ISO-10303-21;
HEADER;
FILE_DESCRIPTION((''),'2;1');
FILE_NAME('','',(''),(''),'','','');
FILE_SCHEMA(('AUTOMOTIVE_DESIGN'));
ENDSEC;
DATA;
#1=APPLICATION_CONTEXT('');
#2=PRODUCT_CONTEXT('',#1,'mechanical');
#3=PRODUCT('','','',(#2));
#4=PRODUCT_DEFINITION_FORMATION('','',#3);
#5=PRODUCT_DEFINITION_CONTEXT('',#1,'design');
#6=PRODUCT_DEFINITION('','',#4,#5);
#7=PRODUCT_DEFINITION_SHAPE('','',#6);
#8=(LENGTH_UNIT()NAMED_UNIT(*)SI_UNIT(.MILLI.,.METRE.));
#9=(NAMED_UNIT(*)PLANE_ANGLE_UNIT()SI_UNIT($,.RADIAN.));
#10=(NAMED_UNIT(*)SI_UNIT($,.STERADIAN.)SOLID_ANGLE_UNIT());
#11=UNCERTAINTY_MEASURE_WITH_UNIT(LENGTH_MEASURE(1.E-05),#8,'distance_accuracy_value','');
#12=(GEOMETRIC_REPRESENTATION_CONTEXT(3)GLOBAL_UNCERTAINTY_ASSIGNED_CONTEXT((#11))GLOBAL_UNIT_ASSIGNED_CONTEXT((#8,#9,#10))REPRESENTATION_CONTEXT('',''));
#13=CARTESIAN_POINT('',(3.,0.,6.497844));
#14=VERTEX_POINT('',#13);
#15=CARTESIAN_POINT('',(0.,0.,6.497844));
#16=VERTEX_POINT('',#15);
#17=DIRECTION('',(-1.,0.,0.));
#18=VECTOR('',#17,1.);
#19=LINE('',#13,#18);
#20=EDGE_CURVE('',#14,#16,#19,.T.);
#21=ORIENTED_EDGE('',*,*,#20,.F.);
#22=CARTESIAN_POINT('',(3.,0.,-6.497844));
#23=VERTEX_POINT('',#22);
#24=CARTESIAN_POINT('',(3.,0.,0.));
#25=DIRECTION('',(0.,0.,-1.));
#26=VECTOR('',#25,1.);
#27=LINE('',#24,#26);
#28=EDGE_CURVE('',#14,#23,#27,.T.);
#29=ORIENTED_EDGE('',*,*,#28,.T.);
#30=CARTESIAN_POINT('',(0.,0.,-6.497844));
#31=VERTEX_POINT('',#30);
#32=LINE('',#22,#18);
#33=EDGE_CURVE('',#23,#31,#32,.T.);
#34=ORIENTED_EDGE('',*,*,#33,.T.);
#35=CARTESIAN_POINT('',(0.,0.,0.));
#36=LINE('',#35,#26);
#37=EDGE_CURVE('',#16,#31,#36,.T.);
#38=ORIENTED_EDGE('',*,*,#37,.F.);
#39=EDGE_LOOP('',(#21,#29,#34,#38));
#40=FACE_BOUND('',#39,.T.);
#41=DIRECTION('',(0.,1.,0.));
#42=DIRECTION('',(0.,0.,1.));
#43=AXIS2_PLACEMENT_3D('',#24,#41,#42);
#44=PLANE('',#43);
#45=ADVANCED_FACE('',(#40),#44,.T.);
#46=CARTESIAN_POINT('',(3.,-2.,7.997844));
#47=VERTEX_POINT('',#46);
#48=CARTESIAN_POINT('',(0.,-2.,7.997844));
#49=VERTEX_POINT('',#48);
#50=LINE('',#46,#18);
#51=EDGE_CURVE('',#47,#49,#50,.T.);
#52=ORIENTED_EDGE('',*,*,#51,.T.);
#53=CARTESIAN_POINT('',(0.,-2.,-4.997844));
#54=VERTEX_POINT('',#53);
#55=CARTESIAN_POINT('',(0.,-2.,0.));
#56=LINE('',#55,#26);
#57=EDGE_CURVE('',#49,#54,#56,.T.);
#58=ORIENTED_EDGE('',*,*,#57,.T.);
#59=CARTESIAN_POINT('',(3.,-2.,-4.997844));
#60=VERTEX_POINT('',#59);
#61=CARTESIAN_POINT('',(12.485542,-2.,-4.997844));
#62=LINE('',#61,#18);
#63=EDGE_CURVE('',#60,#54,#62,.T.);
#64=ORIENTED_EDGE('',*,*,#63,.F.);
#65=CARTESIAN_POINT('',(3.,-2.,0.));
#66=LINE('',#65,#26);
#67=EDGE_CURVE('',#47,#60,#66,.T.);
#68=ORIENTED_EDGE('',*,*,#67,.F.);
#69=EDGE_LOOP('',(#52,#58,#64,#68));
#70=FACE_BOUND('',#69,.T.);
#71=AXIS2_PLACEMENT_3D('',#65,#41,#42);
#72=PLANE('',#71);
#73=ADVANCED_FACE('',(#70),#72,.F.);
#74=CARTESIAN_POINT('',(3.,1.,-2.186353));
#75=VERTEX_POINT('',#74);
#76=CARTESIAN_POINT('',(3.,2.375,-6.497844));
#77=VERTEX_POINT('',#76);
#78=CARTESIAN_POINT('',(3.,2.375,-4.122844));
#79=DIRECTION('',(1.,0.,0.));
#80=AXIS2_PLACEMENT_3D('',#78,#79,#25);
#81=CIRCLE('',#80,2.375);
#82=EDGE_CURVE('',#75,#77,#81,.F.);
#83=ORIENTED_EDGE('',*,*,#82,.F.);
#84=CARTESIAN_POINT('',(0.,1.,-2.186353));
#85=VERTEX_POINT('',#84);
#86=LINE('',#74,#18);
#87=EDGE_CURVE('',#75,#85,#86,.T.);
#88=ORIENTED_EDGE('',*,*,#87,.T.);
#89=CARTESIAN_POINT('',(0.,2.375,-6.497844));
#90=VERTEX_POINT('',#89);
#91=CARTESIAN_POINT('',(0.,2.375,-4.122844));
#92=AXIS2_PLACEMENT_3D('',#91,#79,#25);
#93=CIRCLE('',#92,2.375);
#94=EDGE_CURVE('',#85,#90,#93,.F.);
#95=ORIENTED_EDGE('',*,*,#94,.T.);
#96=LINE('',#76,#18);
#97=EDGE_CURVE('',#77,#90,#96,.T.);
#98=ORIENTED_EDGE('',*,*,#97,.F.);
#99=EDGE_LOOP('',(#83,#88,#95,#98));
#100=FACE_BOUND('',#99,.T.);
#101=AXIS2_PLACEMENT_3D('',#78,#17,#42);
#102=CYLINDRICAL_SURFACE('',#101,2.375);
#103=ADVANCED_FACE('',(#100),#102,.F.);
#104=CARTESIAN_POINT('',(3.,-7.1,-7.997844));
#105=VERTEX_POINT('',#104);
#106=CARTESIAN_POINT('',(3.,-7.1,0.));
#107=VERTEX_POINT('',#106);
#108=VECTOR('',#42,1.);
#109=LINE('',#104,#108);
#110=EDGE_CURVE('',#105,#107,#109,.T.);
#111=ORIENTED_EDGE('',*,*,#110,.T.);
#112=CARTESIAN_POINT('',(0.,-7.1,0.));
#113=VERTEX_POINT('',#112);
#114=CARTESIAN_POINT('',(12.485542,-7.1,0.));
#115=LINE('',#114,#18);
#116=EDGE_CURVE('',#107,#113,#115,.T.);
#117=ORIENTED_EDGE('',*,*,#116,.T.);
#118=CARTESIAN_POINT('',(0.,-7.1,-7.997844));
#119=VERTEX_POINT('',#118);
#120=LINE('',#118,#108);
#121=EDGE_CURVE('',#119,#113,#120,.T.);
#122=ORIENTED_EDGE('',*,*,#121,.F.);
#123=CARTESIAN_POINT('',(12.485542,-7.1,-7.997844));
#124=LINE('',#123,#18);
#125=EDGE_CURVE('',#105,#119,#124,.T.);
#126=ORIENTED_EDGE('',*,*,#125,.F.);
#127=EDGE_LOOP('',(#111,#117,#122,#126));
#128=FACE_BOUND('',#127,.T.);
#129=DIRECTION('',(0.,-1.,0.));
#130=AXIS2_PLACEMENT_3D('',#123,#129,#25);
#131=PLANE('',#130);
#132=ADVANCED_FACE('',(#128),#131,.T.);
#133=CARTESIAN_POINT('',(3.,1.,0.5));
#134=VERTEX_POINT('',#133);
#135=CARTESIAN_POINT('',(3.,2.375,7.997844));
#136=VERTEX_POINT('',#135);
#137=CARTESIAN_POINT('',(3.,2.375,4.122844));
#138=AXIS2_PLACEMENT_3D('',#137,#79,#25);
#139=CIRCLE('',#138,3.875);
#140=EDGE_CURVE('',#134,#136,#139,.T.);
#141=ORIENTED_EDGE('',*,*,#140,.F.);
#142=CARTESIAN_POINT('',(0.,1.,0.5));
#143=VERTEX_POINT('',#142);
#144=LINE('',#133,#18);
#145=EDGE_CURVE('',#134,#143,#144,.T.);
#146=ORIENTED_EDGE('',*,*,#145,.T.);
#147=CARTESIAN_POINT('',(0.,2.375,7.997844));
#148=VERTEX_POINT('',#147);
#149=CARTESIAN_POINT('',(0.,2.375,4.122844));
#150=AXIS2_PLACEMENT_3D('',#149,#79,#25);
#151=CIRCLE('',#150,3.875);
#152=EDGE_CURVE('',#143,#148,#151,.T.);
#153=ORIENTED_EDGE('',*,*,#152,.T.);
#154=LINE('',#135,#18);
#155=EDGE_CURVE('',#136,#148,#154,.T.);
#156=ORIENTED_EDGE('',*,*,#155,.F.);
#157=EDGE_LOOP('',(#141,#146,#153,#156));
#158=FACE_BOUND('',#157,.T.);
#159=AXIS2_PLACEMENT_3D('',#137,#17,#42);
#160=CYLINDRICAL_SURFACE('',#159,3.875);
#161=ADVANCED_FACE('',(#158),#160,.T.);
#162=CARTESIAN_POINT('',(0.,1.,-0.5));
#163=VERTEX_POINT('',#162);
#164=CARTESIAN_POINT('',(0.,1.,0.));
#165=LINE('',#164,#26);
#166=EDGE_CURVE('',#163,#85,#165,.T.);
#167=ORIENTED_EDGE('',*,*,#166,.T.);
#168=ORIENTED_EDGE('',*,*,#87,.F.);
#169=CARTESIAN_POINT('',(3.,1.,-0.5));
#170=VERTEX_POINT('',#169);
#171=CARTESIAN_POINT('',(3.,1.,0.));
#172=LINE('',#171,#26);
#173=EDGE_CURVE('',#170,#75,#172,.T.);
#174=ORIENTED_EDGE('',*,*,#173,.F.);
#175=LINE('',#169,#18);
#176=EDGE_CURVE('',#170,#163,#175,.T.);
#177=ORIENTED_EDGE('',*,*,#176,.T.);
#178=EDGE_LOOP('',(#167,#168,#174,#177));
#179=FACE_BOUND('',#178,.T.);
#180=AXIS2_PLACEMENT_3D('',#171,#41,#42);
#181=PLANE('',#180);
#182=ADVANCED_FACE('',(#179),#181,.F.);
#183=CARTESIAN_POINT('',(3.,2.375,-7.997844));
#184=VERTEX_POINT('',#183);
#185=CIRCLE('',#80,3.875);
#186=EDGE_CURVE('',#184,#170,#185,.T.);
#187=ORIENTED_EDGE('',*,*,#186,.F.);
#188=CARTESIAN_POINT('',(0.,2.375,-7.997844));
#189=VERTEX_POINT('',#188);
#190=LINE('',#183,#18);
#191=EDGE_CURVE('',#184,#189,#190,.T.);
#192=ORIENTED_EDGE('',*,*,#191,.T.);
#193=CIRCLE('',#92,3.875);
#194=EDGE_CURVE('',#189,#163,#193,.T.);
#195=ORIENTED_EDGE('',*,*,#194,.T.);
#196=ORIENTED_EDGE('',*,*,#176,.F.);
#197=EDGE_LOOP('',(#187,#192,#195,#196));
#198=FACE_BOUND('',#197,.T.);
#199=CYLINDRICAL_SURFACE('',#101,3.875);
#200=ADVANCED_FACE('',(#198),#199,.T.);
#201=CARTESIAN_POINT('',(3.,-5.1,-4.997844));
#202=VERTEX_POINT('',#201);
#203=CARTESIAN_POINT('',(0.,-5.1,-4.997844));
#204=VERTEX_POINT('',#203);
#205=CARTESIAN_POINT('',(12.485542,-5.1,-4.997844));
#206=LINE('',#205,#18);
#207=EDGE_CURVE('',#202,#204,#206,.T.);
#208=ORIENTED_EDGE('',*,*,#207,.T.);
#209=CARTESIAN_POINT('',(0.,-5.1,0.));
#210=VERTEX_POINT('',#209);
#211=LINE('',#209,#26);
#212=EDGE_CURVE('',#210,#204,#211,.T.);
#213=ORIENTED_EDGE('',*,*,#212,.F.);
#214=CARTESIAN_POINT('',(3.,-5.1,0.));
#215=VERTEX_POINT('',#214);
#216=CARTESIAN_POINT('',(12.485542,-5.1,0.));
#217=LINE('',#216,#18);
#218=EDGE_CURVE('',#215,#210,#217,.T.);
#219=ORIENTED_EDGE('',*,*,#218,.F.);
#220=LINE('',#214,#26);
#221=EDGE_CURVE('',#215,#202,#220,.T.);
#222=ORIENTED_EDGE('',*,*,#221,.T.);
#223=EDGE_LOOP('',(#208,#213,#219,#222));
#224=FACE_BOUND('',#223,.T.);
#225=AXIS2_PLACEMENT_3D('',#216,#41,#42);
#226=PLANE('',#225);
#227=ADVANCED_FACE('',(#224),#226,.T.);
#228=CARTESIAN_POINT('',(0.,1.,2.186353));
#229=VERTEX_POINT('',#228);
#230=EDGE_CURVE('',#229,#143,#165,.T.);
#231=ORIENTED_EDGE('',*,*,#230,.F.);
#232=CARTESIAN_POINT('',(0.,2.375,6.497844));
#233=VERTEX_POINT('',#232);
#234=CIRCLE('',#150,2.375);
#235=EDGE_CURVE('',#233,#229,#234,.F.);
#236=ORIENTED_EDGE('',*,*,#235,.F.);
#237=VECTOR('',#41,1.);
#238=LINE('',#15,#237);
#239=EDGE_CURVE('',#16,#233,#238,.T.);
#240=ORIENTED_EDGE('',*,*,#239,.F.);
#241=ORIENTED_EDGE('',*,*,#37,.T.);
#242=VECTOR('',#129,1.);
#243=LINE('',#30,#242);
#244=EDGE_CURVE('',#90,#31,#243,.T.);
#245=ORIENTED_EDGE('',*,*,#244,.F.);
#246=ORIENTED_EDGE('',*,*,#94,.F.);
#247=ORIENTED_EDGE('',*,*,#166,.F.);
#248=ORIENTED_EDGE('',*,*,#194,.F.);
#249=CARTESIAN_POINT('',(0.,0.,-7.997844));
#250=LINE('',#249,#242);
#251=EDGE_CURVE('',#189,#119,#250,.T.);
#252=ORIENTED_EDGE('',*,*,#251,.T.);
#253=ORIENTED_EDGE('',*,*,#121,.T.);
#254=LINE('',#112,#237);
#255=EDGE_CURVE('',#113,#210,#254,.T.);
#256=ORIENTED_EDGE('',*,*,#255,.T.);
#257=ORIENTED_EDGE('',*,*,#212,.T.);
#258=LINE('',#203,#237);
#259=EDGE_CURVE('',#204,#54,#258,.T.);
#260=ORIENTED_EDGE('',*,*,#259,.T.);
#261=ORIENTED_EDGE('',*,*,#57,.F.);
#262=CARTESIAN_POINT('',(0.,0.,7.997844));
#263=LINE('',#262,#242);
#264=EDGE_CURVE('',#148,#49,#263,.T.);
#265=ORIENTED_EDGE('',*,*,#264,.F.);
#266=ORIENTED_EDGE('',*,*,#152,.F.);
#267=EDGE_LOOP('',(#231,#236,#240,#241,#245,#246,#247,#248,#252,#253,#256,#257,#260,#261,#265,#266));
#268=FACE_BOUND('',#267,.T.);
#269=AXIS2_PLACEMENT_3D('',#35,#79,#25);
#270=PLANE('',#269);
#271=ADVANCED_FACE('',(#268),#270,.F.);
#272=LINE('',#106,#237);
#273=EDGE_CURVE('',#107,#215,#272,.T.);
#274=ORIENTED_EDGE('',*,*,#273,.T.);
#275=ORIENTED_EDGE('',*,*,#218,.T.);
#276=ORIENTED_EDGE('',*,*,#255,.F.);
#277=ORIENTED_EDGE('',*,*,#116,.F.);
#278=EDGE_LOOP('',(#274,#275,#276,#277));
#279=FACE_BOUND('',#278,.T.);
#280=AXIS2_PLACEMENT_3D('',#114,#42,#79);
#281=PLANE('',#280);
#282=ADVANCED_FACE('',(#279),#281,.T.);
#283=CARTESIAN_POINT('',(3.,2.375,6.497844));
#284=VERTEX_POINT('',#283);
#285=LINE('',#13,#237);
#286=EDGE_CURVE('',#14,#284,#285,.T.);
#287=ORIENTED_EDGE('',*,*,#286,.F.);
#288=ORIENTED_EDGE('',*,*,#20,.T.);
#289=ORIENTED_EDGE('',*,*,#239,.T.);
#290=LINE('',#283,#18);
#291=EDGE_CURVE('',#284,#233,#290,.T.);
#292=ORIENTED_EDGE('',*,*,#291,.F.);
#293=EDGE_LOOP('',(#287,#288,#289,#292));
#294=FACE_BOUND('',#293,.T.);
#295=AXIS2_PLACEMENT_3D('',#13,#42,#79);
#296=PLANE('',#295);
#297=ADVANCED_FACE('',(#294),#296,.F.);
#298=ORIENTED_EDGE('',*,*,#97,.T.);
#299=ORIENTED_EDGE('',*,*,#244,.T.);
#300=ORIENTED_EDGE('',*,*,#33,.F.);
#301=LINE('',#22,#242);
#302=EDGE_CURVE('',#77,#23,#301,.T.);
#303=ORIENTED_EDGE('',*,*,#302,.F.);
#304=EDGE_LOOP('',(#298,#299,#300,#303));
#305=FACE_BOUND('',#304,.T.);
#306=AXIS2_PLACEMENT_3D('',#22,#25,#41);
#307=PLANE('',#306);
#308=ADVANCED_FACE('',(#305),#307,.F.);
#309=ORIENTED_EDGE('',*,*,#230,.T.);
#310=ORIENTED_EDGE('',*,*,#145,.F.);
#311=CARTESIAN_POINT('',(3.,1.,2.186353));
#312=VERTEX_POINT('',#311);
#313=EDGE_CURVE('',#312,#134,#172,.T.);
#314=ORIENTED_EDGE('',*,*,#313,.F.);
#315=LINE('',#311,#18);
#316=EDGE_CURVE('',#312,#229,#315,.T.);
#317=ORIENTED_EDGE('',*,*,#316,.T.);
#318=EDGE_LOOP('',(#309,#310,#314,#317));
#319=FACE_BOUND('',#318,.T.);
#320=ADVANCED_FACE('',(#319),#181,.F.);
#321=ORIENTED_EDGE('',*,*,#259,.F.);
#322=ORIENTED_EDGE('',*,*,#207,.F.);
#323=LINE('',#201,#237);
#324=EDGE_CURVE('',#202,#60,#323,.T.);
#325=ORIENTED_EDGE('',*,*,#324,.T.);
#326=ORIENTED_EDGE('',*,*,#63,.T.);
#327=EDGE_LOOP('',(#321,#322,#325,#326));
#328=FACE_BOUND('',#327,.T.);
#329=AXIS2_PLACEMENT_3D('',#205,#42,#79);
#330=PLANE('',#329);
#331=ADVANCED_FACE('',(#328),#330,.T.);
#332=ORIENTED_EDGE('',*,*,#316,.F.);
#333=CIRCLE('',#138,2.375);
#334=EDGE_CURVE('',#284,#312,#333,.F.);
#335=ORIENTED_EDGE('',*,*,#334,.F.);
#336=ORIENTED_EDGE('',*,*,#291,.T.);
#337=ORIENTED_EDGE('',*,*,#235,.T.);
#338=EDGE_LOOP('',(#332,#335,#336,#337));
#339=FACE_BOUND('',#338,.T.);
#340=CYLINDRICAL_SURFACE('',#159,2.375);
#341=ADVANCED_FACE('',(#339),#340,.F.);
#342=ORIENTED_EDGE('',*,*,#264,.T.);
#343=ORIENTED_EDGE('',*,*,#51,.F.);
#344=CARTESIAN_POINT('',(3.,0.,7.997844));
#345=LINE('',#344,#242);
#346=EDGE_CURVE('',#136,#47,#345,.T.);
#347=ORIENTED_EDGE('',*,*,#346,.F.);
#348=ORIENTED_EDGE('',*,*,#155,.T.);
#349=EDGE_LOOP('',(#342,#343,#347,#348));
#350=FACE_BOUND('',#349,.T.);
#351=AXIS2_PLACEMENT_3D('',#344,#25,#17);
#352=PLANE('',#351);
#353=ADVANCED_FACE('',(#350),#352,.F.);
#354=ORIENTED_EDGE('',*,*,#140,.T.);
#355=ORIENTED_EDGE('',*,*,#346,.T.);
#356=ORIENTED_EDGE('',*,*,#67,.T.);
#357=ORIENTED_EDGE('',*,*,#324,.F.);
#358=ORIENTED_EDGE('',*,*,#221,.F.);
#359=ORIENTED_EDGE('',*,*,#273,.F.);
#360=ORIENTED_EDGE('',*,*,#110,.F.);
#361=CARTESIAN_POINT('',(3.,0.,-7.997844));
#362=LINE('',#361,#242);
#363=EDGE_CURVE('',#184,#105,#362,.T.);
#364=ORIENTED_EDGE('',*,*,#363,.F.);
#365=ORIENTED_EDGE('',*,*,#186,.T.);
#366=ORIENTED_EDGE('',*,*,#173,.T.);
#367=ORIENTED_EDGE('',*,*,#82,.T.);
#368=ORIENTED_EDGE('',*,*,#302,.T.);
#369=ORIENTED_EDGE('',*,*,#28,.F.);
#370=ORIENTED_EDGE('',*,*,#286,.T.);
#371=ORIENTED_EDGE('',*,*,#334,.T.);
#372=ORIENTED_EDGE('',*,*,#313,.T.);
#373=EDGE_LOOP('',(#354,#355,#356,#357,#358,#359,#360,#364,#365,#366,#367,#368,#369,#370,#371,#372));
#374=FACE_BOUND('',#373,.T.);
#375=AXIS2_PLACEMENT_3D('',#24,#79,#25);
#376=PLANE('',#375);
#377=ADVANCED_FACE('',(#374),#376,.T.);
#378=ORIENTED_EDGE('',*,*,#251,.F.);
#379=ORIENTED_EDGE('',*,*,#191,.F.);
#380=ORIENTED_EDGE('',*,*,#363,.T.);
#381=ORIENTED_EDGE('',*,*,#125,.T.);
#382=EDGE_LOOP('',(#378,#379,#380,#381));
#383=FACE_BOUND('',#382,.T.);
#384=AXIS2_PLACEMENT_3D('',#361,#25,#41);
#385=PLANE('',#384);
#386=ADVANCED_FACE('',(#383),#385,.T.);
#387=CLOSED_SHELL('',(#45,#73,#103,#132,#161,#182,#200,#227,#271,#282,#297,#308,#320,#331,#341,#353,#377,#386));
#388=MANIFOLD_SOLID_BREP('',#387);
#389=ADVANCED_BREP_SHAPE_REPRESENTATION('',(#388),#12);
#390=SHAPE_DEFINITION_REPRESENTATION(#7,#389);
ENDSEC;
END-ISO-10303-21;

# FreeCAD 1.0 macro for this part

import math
import FreeCAD as App
import Part
import Sketcher

V = App.Vector


def add_polygon(sketch, points):
    """Adds a closed chain of lines whose ends are joined by coincident constraints."""
    first, n = sketch.GeometryCount, len(points)
    for a, b in zip(points, points[1:] + points[:1]):
        sketch.addGeometry(Part.LineSegment(App.Vector(*a, 0), App.Vector(*b, 0)), False)
    for i in range(n):
        sketch.addConstraint(Sketcher.Constraint("Coincident", first + i, 2, first + (i + 1) % n, 1))

doc = App.newDocument("Part")
body = doc.addObject("PartDesign::Body", "Body")

# Sketch on YZ plane
sketch1 = body.newObject("Sketcher::SketchObject", "Sketch")
sketch1.AttachmentSupport = (doc.getObject("YZ_Plane"), [""])
sketch1.MapMode = "FlatFace"
sketch1.addGeometry([
    Part.LineSegment(V(2.4, 8, 0), V(-2, 8, 0)),  # 0
    Part.LineSegment(V(-2, 8, 0), V(-2, -8, 0)),  # 1
    Part.LineSegment(V(-2, -8, 0), V(2.4, -8, 0)),  # 2
    Part.ArcOfCircle(Part.Circle(V(2.4, -4.1, 0), V(0, 0, 1), 3.9), math.radians(-90), math.radians(111)),  # 3
    Part.LineSegment(V(1, -0.5, 0), V(1, -2.2, 0)),  # 4
    Part.ArcOfCircle(Part.Circle(V(2.4, -4.1, 0), V(0, 0, 1), 2.4), math.radians(-90), math.radians(125)),  # 5
    Part.LineSegment(V(2.4, -6.5, 0), V(0, -6.5, 0)),  # 6
    Part.LineSegment(V(0, -6.5, 0), V(0, 6.5, 0)),  # 7
    Part.LineSegment(V(0, 6.5, 0), V(2.4, 6.5, 0)),  # 8
    Part.ArcOfCircle(Part.Circle(V(2.4, 4.1, 0), V(0, 0, 1), 2.4), math.radians(-125), math.radians(90)),  # 9
    Part.LineSegment(V(1, 2.2, 0), V(1, 0.5, 0)),  # 10
    Part.ArcOfCircle(Part.Circle(V(2.4, 4.1, 0), V(0, 0, 1), 3.9), math.radians(-111), math.radians(90)),  # 11
], False)
sketch1.addConstraint([
    Sketcher.Constraint("Coincident", 0, 2, 1, 1),
    Sketcher.Constraint("Coincident", 1, 2, 2, 1),
    Sketcher.Constraint("Tangent", 2, 2, 3, 1),
    Sketcher.Constraint("Coincident", 3, 2, 4, 1),
    Sketcher.Constraint("Coincident", 4, 2, 5, 2),
    Sketcher.Constraint("Tangent", 5, 1, 6, 1),
    Sketcher.Constraint("Coincident", 6, 2, 7, 1),
    Sketcher.Constraint("Coincident", 7, 2, 8, 1),
    Sketcher.Constraint("Tangent", 8, 2, 9, 2),
    Sketcher.Constraint("Coincident", 9, 1, 10, 1),
    Sketcher.Constraint("Coincident", 10, 2, 11, 1),
    Sketcher.Constraint("Tangent", 11, 2, 0, 1),
    Sketcher.Constraint("Horizontal", 0),
    Sketcher.Constraint("Vertical", 1),
    Sketcher.Constraint("Horizontal", 2),
    Sketcher.Constraint("Vertical", 4),
    Sketcher.Constraint("Horizontal", 6),
    Sketcher.Constraint("Vertical", 7),
    Sketcher.Constraint("Horizontal", 8),
    Sketcher.Constraint("Vertical", 10),
    Sketcher.Constraint("Coincident", 5, 3, 3, 3),
    Sketcher.Constraint("Coincident", 11, 3, 9, 3),
    Sketcher.Constraint("Equal", 5, 9),
    Sketcher.Constraint("Equal", 3, 11),
    Sketcher.Constraint("Symmetric", 6, 2, 7, 2, -1, 1),
    Sketcher.Constraint("Symmetric", 4, 2, 9, 1, -1),
    Sketcher.Constraint("DistanceX", 0, 2, -1, 1, 2.0),
    Sketcher.Constraint("DistanceX", -1, 1, 3, 2, 1.0),
    Sketcher.Constraint("Radius", 3, 3.875),
    Sketcher.Constraint("Radius", 5, 2.375),
    Sketcher.Constraint("DistanceY", 3, 2, 10, 2, 1.0),
    Sketcher.Constraint("DistanceX", 0, 2, 0, 1, 4.375),
])
pad1 = body.newObject("PartDesign::Pad", "Pad")
pad1.Profile = sketch1
pad1.Length = 3

# Sketch on YZ plane
sketch2 = body.newObject("Sketcher::SketchObject", "Sketch001")
sketch2.AttachmentSupport = (doc.getObject("YZ_Plane"), [""])
sketch2.MapMode = "FlatFace"
add_polygon(sketch2, [(-2, -8), (-7.1, -8), (-7.1, 0), (-5.1, 0), (-5.1, -5), (-2, -5)])  # lines 0-5
sketch2.addConstraint([
    Sketcher.Constraint("Horizontal", 0),
    Sketcher.Constraint("Vertical", 1),
    Sketcher.Constraint("Horizontal", 2),
    Sketcher.Constraint("Vertical", 3),
    Sketcher.Constraint("Horizontal", 4),
    Sketcher.Constraint("Vertical", 5),
    Sketcher.Constraint("PointOnObject", 1, 2, -1),
    Sketcher.Constraint("DistanceX", 2, 1, 2, 2, 2.0),
    Sketcher.Constraint("DistanceY", 5, 2, 5, 1, 3.0),
    Sketcher.Constraint("DistanceX", 0, 2, 0, 1, 5.1),
    Sketcher.Constraint("DistanceX", 4, 2, -1, 1, 2.0),
    Sketcher.Constraint("DistanceY", 1, 1, 1, 2, 7.997844),
])
pad2 = body.newObject("PartDesign::Pad", "Pad001")
pad2.Profile = sketch2
pad2.Length = 3

doc.recompute()
